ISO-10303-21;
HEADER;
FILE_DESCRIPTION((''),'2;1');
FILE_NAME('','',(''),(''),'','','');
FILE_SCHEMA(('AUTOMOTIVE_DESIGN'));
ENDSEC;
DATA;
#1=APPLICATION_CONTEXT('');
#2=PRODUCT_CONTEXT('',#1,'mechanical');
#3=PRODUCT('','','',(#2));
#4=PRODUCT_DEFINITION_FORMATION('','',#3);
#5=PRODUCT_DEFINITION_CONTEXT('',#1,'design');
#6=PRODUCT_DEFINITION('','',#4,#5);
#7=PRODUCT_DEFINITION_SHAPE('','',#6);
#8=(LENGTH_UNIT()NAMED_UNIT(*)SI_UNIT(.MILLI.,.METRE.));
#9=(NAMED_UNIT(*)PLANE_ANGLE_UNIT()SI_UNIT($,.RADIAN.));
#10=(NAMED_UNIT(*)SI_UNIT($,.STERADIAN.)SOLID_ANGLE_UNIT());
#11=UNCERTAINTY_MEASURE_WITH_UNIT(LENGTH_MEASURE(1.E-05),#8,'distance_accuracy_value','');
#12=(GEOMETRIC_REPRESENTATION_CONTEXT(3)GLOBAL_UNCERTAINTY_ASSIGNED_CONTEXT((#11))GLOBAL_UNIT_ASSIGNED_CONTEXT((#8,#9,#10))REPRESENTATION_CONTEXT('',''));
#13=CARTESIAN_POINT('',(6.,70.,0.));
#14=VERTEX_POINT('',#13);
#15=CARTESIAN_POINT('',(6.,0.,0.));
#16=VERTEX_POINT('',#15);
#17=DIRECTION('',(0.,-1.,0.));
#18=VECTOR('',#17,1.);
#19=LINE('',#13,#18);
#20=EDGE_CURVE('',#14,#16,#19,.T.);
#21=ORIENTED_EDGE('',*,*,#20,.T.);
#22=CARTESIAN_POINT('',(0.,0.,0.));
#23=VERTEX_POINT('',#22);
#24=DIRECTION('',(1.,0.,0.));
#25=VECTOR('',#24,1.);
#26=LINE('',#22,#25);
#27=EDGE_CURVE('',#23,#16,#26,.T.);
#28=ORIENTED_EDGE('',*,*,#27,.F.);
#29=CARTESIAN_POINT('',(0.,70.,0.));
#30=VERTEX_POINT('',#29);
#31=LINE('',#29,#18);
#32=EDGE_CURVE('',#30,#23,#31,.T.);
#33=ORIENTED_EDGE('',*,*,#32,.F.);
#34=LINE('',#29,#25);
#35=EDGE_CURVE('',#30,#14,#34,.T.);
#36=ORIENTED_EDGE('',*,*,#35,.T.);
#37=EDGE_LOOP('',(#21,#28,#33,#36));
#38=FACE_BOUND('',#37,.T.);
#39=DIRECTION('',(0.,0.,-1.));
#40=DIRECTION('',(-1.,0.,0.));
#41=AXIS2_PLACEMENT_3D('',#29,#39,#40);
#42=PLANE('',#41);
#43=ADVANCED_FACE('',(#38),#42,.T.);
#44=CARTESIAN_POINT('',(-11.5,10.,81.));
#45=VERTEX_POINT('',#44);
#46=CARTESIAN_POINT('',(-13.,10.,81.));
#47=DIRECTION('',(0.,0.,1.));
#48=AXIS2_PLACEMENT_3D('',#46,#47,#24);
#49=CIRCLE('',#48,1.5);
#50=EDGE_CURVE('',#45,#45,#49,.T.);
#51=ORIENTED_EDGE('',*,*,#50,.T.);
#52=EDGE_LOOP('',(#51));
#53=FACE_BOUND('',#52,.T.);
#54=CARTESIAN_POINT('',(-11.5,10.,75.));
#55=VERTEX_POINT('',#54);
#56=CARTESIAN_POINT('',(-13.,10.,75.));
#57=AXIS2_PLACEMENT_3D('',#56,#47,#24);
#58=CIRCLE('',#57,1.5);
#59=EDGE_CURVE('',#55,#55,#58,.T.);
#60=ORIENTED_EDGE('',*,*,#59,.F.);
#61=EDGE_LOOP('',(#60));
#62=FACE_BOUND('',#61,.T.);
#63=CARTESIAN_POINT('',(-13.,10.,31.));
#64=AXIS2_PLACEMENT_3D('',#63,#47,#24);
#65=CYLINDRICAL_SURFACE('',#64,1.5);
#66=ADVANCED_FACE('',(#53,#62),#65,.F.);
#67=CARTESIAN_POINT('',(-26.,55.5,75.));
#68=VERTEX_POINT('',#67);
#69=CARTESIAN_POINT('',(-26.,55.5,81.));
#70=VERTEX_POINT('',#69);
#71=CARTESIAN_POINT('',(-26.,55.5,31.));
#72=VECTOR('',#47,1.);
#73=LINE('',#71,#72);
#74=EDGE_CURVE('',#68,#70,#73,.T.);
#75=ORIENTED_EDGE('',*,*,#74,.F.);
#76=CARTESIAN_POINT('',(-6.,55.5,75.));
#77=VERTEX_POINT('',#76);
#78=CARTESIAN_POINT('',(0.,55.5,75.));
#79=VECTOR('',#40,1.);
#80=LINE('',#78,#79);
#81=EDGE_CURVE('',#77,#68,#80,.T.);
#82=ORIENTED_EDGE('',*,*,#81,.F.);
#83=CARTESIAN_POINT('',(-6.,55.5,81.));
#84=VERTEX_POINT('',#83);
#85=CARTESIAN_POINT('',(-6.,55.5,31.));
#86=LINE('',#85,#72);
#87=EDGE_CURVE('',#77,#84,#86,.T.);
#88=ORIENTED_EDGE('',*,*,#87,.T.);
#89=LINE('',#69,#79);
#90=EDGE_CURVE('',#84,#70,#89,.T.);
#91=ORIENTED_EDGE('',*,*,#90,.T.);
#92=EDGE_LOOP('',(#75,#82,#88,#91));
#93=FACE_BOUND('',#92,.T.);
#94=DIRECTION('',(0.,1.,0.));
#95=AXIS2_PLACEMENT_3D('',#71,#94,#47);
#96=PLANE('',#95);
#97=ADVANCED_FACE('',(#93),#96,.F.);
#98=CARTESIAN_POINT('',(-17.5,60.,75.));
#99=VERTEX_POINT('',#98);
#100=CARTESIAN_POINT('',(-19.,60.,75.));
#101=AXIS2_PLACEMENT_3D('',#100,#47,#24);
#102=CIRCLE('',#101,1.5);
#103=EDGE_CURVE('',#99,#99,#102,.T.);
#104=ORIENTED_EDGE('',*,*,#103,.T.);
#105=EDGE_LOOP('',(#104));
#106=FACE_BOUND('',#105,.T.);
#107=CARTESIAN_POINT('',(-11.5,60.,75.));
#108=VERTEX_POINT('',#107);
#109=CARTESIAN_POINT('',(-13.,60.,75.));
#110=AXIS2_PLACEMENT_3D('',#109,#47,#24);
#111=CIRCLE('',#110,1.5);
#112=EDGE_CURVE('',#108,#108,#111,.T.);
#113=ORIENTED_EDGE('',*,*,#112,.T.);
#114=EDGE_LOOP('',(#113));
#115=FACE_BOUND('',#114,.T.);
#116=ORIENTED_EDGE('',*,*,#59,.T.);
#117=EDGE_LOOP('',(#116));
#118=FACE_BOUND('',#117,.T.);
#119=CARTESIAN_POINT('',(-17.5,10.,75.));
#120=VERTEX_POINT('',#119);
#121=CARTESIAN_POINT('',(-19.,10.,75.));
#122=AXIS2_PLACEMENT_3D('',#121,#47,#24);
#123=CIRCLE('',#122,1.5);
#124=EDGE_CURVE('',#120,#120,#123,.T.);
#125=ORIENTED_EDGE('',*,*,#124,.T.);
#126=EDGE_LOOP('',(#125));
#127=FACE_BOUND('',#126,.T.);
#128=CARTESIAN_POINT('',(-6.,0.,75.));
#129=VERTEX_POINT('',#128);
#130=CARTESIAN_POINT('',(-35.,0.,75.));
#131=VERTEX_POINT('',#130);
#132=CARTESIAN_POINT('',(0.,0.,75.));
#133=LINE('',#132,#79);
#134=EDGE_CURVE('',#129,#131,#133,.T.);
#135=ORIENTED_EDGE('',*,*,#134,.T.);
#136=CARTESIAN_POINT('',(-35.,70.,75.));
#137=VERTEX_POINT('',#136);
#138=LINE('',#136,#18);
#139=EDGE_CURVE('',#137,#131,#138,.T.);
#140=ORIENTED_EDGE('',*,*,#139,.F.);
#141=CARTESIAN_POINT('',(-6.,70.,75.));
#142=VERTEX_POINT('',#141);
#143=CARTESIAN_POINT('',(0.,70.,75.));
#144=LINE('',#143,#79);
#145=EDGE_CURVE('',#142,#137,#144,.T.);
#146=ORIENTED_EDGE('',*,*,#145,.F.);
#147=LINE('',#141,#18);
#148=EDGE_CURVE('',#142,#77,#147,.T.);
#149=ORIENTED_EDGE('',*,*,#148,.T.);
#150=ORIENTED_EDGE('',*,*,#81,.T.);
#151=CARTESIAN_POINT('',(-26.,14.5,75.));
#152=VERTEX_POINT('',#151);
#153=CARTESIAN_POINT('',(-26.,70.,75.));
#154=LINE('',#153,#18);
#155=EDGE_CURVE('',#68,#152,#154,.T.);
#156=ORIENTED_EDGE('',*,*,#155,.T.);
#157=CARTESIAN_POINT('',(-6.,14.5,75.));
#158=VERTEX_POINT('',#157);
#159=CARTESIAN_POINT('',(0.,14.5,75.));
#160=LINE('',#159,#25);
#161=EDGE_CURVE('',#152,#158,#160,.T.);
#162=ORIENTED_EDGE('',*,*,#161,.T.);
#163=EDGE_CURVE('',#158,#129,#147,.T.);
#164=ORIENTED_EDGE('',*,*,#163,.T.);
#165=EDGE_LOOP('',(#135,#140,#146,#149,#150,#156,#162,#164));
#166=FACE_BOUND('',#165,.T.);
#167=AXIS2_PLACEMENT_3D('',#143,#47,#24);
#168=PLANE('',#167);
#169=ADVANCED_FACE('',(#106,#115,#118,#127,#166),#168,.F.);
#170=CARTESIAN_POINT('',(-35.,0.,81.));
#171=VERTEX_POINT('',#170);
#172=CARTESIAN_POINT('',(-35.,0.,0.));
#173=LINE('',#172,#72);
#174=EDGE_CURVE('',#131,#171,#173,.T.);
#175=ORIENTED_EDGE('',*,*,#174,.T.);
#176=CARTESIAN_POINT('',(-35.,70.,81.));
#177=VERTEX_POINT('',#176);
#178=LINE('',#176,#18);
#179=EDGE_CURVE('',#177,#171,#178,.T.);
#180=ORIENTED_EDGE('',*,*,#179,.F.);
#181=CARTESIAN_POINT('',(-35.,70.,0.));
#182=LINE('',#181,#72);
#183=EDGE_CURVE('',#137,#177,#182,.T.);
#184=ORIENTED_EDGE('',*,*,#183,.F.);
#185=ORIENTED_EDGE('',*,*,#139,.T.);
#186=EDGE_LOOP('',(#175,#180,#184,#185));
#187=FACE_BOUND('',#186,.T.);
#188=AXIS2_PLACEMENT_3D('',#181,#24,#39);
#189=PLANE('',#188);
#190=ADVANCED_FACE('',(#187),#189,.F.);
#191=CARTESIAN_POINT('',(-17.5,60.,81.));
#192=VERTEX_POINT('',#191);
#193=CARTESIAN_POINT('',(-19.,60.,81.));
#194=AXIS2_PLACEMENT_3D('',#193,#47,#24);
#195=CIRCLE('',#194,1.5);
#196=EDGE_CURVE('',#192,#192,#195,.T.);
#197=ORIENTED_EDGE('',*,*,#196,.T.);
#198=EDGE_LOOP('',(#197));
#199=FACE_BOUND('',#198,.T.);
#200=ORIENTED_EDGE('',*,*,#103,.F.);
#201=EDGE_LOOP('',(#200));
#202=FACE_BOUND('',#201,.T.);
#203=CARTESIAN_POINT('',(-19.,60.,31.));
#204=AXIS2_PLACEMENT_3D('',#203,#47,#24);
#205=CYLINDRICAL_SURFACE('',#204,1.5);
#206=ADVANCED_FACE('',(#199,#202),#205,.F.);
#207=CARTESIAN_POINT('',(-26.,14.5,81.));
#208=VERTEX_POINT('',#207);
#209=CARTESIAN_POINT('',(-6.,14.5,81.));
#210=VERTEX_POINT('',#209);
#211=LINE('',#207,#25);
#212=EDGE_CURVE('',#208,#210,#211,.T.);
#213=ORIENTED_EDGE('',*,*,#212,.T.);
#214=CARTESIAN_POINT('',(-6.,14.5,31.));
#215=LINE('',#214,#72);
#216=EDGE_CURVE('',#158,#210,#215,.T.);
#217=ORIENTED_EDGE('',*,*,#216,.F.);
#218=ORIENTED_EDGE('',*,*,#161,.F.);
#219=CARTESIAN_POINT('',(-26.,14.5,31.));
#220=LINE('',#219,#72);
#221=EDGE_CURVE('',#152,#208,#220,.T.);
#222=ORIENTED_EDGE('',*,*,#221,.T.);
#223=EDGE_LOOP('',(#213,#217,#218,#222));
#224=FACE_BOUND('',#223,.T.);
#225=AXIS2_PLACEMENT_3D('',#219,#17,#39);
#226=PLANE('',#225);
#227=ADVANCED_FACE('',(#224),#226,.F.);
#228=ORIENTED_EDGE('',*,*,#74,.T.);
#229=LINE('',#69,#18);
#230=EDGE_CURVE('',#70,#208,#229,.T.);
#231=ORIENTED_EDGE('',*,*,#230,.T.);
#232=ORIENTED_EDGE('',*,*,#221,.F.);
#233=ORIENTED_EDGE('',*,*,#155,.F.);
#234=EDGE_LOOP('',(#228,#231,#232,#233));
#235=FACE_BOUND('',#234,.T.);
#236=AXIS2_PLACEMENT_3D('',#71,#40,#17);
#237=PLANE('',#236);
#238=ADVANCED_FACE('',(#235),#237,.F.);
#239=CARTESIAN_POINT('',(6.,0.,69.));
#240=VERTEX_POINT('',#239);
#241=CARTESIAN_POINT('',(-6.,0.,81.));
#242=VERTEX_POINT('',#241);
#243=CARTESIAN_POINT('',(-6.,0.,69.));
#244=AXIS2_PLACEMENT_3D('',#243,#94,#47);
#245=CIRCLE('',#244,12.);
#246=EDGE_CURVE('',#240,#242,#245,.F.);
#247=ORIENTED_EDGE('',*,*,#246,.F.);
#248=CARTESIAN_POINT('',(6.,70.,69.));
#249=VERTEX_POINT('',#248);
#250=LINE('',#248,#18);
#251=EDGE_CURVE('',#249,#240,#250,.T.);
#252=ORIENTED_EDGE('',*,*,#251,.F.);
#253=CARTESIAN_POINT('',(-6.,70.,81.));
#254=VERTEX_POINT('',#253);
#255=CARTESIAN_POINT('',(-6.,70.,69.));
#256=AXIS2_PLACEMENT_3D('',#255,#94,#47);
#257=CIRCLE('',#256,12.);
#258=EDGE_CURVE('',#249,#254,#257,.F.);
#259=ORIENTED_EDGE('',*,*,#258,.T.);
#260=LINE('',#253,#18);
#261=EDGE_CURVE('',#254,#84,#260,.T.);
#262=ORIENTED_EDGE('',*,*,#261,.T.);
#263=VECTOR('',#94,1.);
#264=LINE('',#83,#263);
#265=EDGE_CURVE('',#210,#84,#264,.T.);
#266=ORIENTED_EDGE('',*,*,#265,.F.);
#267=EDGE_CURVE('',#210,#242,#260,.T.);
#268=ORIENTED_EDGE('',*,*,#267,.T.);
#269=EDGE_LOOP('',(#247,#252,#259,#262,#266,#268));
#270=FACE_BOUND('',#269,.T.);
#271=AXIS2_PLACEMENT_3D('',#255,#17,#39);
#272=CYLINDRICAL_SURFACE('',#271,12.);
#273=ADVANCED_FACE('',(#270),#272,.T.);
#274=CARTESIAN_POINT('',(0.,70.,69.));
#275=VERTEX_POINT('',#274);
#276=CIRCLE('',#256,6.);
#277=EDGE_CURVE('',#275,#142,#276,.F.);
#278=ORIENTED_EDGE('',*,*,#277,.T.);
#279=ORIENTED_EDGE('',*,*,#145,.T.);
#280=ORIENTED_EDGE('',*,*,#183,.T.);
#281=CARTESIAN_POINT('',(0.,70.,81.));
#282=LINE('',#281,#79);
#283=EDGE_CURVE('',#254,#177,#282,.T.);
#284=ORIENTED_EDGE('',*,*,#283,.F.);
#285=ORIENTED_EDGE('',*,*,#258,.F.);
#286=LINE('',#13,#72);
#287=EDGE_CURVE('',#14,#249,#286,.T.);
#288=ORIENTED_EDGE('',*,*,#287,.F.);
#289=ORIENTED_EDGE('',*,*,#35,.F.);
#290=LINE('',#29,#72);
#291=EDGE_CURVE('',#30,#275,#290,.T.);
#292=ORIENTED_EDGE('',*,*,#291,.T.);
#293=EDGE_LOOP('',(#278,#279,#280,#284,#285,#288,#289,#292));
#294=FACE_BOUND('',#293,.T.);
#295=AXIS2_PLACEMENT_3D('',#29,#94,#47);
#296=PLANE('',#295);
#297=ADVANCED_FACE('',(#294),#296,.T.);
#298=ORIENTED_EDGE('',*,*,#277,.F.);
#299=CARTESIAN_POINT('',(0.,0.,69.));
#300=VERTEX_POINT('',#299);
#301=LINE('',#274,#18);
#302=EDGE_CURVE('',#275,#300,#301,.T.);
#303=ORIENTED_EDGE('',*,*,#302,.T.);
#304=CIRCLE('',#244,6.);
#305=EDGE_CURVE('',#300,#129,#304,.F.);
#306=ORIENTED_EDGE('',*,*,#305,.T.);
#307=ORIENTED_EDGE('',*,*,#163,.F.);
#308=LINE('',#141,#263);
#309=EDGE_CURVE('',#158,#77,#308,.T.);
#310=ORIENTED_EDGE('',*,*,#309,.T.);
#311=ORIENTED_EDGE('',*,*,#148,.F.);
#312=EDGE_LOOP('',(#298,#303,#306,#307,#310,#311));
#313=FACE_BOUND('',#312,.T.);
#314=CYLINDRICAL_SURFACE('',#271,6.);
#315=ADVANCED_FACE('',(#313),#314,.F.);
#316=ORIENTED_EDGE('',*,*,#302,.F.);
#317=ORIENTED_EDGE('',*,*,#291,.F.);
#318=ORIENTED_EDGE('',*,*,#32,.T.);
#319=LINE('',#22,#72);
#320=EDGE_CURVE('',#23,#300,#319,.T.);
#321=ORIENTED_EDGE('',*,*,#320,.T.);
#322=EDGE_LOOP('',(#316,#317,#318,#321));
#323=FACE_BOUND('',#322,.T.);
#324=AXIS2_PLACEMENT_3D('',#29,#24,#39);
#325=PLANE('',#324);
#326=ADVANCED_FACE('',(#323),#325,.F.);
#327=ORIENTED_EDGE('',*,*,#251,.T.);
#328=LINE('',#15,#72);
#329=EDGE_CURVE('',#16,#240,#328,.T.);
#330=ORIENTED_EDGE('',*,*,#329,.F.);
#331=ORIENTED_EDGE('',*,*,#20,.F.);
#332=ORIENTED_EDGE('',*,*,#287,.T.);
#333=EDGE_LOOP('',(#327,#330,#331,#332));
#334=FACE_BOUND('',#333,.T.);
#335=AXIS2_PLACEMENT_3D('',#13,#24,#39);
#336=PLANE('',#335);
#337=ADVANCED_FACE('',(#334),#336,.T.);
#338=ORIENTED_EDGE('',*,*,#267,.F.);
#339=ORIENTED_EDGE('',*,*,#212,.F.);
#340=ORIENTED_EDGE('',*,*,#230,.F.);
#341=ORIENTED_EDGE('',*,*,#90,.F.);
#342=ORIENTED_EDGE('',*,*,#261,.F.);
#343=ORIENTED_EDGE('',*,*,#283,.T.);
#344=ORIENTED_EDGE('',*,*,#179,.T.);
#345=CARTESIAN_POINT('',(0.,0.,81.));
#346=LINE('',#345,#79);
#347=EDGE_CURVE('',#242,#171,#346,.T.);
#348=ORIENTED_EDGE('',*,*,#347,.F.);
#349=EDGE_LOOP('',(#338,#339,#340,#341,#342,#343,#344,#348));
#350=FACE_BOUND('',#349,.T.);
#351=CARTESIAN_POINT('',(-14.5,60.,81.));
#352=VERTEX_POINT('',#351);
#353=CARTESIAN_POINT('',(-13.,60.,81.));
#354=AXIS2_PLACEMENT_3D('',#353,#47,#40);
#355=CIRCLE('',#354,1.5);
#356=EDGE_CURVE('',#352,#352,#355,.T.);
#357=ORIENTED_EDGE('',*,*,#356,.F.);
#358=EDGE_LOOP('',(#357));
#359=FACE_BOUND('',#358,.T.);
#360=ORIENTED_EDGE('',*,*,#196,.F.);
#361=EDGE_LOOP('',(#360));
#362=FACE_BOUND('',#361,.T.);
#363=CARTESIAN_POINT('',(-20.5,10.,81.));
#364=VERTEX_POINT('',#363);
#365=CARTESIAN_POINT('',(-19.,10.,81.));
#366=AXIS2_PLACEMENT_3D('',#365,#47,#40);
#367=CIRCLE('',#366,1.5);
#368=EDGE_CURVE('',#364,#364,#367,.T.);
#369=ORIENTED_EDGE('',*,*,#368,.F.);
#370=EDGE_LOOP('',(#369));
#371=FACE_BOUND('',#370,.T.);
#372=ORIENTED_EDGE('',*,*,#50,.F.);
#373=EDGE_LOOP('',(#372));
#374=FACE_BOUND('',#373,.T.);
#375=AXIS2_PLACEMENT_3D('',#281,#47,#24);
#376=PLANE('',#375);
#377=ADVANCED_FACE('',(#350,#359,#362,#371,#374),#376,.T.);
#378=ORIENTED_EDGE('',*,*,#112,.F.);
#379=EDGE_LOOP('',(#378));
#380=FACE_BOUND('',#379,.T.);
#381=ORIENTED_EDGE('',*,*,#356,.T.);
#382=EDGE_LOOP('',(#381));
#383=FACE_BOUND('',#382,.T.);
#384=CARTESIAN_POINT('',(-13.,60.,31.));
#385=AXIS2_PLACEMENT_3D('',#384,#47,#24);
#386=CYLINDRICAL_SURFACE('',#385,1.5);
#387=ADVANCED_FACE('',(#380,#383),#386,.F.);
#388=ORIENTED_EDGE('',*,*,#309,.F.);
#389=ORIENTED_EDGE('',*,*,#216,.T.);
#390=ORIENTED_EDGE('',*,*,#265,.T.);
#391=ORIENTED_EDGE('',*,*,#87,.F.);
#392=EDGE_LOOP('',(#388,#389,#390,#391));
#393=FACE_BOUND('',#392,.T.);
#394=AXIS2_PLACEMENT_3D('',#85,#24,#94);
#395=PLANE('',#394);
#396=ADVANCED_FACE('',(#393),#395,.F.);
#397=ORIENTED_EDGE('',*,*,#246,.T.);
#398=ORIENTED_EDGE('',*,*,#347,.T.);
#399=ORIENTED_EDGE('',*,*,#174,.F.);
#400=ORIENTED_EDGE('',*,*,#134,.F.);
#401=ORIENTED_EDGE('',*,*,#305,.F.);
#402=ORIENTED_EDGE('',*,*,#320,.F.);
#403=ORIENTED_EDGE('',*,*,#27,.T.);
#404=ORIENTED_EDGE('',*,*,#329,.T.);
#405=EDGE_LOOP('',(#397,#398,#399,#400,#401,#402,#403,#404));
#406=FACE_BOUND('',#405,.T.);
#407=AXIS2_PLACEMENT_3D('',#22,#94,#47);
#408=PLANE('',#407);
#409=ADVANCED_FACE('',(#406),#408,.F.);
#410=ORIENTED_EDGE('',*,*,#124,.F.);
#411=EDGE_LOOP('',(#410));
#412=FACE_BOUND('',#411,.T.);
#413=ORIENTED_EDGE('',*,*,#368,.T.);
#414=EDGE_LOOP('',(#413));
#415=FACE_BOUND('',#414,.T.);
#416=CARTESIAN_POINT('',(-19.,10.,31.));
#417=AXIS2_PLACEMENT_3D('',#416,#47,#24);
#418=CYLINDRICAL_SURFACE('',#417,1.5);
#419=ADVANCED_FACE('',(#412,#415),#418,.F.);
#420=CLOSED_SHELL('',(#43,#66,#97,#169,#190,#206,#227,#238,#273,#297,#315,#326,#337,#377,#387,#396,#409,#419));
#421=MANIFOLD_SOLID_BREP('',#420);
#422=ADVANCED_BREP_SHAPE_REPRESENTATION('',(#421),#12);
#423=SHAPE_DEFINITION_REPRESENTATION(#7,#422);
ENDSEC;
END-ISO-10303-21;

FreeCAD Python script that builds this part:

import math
import FreeCAD as App
import Part
import Sketcher
Q = App.Units.Quantity

doc = App.newDocument("Part")
params = doc.addObject("Spreadsheet::Sheet", "Params")
for row, (alias, value) in enumerate([
    ("sketch1_radius", "12 mm"),
    ("sketch1_radius2", "6 mm"),
    ("sketch1_width", "29 mm"),
    ("sketch1_height", "69 mm"),
    ("pad1_length", "70 mm"),
    ("sketch2_diameter", "3 mm"),
    ("sketch2_width", "20 mm"),
    ("sketch2_height", "41 mm"),
    ("pocket1_length", "50 mm"),
], start=1):
    params.set(f"A{row}", alias)
    params.set(f"B{row}", "=" + value)
    params.setAlias(f"B{row}", alias)

body = doc.addObject("PartDesign::Body", "Body")

# Sketch on XZ plane
sketch1 = body.newObject("Sketcher::SketchObject", "Sketch")
sketch1.AttachmentSupport = (doc.getObject("XZ_Plane"), [""])
sketch1.MapMode = "FlatFace"
sketch1.addGeometry([
    Part.ArcOfCircle(Part.Circle(App.Vector(-6, 69, 0), App.Vector(0, 0, 1), 12), math.radians(0), math.radians(90)),  # 0
    Part.LineSegment(App.Vector(6, 69, 0), App.Vector(6, 0, 0)),  # 1
    Part.LineSegment(App.Vector(6, 0, 0), App.Vector(0, 0, 0)),  # 2
    Part.LineSegment(App.Vector(0, 0, 0), App.Vector(0, 69, 0)),  # 3
    Part.ArcOfCircle(Part.Circle(App.Vector(-6, 69, 0), App.Vector(0, 0, 1), 6), math.radians(0), math.radians(90)),  # 4
    Part.LineSegment(App.Vector(-6, 75, 0), App.Vector(-35, 75, 0)),  # 5
    Part.LineSegment(App.Vector(-35, 75, 0), App.Vector(-35, 81, 0)),  # 6
    Part.LineSegment(App.Vector(-35, 81, 0), App.Vector(-6, 81, 0)),  # 7
], False)
sketch1.addConstraint([
    Sketcher.Constraint("Tangent", 0, 1, 1, 1),
    Sketcher.Constraint("Coincident", 1, 2, 2, 1),
    Sketcher.Constraint("Coincident", 2, 2, 3, 1),
    Sketcher.Constraint("Tangent", 3, 2, 4, 1),
    Sketcher.Constraint("Tangent", 4, 2, 5, 1),
    Sketcher.Constraint("Coincident", 5, 2, 6, 1),
    Sketcher.Constraint("Coincident", 6, 2, 7, 1),
    Sketcher.Constraint("Tangent", 7, 2, 0, 2),
    Sketcher.Constraint("Vertical", 1),
    Sketcher.Constraint("Horizontal", 2),
    Sketcher.Constraint("Vertical", 3),
    Sketcher.Constraint("Horizontal", 5),
    Sketcher.Constraint("Vertical", 6),
    Sketcher.Constraint("Horizontal", 7),
    Sketcher.Constraint("Coincident", 2, 2, -1, 1),
    Sketcher.Constraint("Coincident", 4, 3, 0, 3),
    Sketcher.Constraint("Radius", 0, Q("12 mm")),
    Sketcher.Constraint("Radius", 4, Q("6 mm")),
    Sketcher.Constraint("DistanceX", 5, 2, 5, 1, Q("29 mm")),
    Sketcher.Constraint("DistanceY", 1, 2, 1, 1, Q("69 mm")),
])
sketch1.setExpression("Constraints[16]", "Params.sketch1_radius")
sketch1.setExpression("Constraints[17]", "Params.sketch1_radius2")
sketch1.setExpression("Constraints[18]", "Params.sketch1_width")
sketch1.setExpression("Constraints[19]", "Params.sketch1_height")
pad1 = body.newObject("PartDesign::Pad", "Pad")
pad1.Profile = sketch1
pad1.setExpression("Length", "Params.pad1_length")
pad1.Reversed = True

# Sketch on XY plane
sketch2 = body.newObject("Sketcher::SketchObject", "Sketch001")
sketch2.AttachmentSupport = (doc.getObject("XY_Plane"), [""])
sketch2.MapMode = "FlatFace"
sketch2.AttachmentOffset = App.Placement(App.Vector(0, 0, 81), App.Rotation())
sketch2.addGeometry([
    Part.Circle(App.Vector(-19, 60, 0), App.Vector(0, 0, 1), 1.5),  # 0
    Part.Circle(App.Vector(-13, 60, 0), App.Vector(0, 0, 1), 1.5),  # 1
    Part.Circle(App.Vector(-13, 10, 0), App.Vector(0, 0, 1), 1.5),  # 2
    Part.Circle(App.Vector(-19, 10, 0), App.Vector(0, 0, 1), 1.5),  # 3
    Part.LineSegment(App.Vector(-26, 55.5, 0), App.Vector(-26, 14.5, 0)),  # 4
    Part.LineSegment(App.Vector(-26, 14.5, 0), App.Vector(-6, 14.5, 0)),  # 5
    Part.LineSegment(App.Vector(-6, 14.5, 0), App.Vector(-6, 55.5, 0)),  # 6
    Part.LineSegment(App.Vector(-6, 55.5, 0), App.Vector(-26, 55.5, 0)),  # 7
], False)
sketch2.addConstraint([
    Sketcher.Constraint("Coincident", 4, 2, 5, 1),
    Sketcher.Constraint("Coincident", 5, 2, 6, 1),
    Sketcher.Constraint("Coincident", 6, 2, 7, 1),
    Sketcher.Constraint("Coincident", 7, 2, 4, 1),
    Sketcher.Constraint("Vertical", 4),
    Sketcher.Constraint("Horizontal", 5),
    Sketcher.Constraint("Vertical", 6),
    Sketcher.Constraint("Horizontal", 7),
    Sketcher.Constraint("Equal", 0, 1),
    Sketcher.Constraint("Equal", 1, 2),
    Sketcher.Constraint("Equal", 2, 3),
    Sketcher.Constraint("Horizontal", 0, 3, 1, 3),
    Sketcher.Constraint("Horizontal", 2, 3, 3, 3),
    Sketcher.Constraint("Vertical", 1, 3, 2, 3),
    Sketcher.Constraint("Vertical", 0, 3, 3, 3),
    Sketcher.Constraint("Diameter", 0, Q("3 mm")),
    Sketcher.Constraint("DistanceX", 5, 1, 5, 2, Q("20 mm")),
    Sketcher.Constraint("DistanceY", 4, 2, 4, 1, Q("41 mm")),
    Sketcher.Constraint("DistanceX", 0, 3, -1, 1, Q("19 mm")),
    Sketcher.Constraint("DistanceY", -1, 1, 0, 3, Q("60 mm")),
    Sketcher.Constraint("DistanceX", 1, 3, -1, 1, Q("13 mm")),
    Sketcher.Constraint("DistanceY", -1, 1, 2, 3, Q("10 mm")),
    Sketcher.Constraint("DistanceX", 4, 2, -1, 1, Q("26 mm")),
    Sketcher.Constraint("DistanceY", -1, 1, 4, 2, Q("14.5 mm")),
])
sketch2.setExpression("Constraints[15]", "Params.sketch2_diameter")
sketch2.setExpression("Constraints[16]", "Params.sketch2_width")
sketch2.setExpression("Constraints[17]", "Params.sketch2_height")
pocket1 = body.newObject("PartDesign::Pocket", "Pocket")
pocket1.Profile = sketch2
pocket1.setExpression("Length", "Params.pocket1_length")

doc.recompute()
